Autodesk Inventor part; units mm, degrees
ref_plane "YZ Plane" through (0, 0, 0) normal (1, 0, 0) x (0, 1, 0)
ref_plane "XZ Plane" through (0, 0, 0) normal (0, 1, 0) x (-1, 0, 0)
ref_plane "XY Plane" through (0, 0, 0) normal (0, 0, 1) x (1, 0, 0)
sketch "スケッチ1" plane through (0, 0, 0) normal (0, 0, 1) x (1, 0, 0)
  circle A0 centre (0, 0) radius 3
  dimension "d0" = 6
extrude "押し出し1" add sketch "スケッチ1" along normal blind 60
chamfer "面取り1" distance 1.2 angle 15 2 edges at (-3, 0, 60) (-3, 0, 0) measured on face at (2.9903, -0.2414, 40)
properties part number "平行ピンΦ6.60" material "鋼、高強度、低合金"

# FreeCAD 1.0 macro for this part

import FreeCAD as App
import Part
import Sketcher
Q = App.Units.Quantity


def edges_at(feature, points):
    """Names of the edges that pass closest to the given points."""
    edges = feature.Shape.Edges
    near = lambda p: min(range(len(edges)), key=lambda i: edges[i].distToShape(Part.Vertex(*p))[0])
    return sorted({f"Edge{near(p) + 1}" for p in points})

doc = App.newDocument("Part")
body = doc.addObject("PartDesign::Body", "Body")

# Sketch on XY plane
sketch1 = body.newObject("Sketcher::SketchObject", "Sketch")
sketch1.AttachmentSupport = (doc.getObject("XY_Plane"), [""])
sketch1.MapMode = "FlatFace"
sketch1.addGeometry(Part.Circle(App.Vector(0, 0, 0), App.Vector(0, 0, 1), 3), False)
sketch1.addConstraint(Sketcher.Constraint("Coincident", 0, 3, -1, 1))
sketch1.addConstraint(Sketcher.Constraint("Diameter", 0, Q("6 mm")))
pad1 = body.newObject("PartDesign::Pad", "Pad")
pad1.Profile = sketch1
pad1.Length = 60
doc.recompute()

chamfer = body.newObject("PartDesign::Chamfer", "Chamfer")
chamfer.Base = (pad1, edges_at(pad1, [(-3, 0, 60), (-3, 0, 0)]))
chamfer.ChamferType = "Distance and Angle"
chamfer.Size = 1.2
chamfer.Angle = 15

doc.recompute()
